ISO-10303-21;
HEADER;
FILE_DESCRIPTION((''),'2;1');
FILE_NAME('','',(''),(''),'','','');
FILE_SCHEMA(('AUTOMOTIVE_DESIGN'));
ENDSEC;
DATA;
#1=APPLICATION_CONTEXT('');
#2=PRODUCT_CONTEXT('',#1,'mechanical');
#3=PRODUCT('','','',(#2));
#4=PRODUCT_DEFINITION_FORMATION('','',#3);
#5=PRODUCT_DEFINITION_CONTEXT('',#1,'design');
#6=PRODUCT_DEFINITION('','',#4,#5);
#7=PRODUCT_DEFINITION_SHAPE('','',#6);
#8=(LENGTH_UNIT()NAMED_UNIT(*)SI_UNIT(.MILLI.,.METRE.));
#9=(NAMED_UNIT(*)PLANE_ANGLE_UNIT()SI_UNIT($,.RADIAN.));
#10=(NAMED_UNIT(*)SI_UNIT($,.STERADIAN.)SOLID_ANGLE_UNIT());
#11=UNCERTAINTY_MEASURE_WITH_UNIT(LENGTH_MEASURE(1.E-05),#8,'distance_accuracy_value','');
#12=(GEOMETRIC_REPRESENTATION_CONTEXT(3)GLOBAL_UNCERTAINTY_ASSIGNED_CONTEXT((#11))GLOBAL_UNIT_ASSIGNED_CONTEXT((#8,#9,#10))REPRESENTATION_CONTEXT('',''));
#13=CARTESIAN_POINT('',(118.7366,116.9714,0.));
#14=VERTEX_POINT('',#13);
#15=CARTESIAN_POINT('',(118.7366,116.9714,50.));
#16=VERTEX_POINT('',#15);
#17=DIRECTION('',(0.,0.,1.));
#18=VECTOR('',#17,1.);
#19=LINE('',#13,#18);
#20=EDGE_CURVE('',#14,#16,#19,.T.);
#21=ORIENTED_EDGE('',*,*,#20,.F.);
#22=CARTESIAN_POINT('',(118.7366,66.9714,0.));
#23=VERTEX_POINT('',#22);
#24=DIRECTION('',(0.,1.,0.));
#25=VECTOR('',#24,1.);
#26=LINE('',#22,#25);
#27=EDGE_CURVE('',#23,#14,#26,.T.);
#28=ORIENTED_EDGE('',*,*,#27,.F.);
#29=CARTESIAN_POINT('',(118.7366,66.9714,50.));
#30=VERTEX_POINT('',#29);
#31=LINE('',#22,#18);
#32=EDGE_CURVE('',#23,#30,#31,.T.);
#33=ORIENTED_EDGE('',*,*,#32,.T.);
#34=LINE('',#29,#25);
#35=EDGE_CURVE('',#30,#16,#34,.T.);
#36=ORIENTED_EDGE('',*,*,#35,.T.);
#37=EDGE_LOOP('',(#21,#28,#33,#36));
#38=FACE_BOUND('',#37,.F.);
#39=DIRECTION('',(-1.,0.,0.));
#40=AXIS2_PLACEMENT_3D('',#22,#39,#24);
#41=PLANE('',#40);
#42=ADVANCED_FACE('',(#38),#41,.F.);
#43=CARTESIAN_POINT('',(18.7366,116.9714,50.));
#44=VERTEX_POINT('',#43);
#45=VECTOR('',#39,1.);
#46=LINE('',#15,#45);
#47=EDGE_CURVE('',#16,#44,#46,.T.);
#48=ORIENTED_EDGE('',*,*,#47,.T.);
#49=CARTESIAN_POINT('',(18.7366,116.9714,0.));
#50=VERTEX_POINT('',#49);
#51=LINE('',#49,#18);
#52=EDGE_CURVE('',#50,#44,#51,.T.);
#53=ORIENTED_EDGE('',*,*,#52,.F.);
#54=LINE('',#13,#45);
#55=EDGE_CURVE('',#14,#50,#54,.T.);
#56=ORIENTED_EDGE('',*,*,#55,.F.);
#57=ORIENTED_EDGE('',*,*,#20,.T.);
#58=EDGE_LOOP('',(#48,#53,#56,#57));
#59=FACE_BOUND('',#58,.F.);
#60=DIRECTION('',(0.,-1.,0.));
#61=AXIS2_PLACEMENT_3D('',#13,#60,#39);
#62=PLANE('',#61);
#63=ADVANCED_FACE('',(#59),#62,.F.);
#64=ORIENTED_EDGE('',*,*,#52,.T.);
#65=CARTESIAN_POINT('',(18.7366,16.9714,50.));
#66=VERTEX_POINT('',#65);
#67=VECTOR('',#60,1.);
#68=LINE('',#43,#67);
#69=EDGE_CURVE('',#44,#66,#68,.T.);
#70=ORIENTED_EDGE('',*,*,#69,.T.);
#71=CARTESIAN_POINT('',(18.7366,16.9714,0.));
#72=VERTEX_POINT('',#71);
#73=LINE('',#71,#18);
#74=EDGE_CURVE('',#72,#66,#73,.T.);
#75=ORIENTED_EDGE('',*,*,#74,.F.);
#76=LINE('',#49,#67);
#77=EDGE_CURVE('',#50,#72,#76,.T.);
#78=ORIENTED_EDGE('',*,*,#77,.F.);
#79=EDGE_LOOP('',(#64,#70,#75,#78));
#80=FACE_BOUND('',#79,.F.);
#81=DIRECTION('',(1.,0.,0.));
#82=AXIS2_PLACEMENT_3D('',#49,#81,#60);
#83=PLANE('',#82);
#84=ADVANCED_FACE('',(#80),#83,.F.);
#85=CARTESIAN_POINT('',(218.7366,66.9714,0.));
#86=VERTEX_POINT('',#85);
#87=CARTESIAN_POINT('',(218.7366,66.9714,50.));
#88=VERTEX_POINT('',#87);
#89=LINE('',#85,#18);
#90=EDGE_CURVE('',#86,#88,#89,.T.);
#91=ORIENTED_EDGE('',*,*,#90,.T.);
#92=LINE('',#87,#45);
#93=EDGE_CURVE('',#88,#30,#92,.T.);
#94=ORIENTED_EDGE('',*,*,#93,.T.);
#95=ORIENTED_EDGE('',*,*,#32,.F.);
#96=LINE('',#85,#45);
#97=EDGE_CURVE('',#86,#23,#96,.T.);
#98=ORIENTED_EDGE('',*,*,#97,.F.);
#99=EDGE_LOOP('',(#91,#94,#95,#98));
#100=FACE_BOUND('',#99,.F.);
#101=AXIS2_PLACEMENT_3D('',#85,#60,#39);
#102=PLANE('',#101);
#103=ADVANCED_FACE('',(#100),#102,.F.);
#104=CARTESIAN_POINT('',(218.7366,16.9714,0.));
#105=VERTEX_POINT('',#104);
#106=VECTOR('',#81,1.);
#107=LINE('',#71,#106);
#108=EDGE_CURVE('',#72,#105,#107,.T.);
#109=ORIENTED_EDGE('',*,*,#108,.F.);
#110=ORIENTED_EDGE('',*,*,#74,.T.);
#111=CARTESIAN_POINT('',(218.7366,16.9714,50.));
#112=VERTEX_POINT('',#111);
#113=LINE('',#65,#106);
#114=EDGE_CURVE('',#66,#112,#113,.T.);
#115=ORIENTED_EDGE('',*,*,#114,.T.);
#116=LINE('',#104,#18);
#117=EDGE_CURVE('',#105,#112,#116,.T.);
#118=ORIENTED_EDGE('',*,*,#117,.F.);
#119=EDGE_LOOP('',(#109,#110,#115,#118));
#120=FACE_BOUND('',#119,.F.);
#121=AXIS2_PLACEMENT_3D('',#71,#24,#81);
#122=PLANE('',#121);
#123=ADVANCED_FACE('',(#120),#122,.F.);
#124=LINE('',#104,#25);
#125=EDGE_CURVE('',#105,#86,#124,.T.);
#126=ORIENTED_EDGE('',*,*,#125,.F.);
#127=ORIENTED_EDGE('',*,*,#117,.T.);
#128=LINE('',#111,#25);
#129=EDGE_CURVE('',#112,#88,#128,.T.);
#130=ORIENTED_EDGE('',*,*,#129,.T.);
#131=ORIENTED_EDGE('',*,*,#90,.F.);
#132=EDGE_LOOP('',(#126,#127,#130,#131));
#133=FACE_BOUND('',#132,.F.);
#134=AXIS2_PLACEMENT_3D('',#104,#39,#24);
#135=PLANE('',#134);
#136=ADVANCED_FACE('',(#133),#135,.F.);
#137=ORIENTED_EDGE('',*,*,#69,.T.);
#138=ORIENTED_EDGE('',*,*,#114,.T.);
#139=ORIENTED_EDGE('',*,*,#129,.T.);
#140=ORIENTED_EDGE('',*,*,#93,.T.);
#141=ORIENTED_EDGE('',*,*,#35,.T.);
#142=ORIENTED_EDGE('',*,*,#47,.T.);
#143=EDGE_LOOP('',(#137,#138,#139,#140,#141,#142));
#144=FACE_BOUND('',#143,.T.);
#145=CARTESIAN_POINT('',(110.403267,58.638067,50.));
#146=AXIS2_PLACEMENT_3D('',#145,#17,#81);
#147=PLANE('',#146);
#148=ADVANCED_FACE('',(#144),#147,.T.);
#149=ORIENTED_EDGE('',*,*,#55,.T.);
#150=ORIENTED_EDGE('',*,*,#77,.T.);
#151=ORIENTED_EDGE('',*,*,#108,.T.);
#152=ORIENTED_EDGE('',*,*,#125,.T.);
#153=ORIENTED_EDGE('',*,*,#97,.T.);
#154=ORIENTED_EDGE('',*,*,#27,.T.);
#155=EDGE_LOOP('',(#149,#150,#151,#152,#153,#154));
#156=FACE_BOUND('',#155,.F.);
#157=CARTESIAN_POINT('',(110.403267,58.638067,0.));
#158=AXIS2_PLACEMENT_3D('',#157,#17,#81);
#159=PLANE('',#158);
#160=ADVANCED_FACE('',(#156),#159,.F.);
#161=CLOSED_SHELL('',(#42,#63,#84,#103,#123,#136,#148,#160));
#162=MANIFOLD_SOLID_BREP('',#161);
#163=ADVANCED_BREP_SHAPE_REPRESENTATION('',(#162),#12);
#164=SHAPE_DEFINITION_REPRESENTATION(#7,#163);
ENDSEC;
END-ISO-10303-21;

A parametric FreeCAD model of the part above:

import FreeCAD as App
import Part
import Sketcher
from FreeCAD import Vector
Q = App.Units.Quantity

doc = App.newDocument("Part")
params = doc.addObject("Spreadsheet::Sheet", "Params")
for row, (alias, value) in enumerate([
    ("sketch1_width", "200 mm"),
    ("pad1_length", "50 mm"),
], start=1):
    params.set(f"A{row}", alias)
    params.set(f"B{row}", "=" + value)
    params.setAlias(f"B{row}", alias)

body = doc.addObject("PartDesign::Body", "Body")

# Sketch on XY plane
sketch1 = body.newObject("Sketcher::SketchObject", "Sketch")
sketch1.AttachmentSupport = (doc.getObject("XY_Plane"), [""])
sketch1.MapMode = "FlatFace"
sketch1.addGeometry([
    Part.LineSegment(Vector(18.7366, 116.9714, 0), Vector(18.7366, 16.9714, 0)),  # 0
    Part.LineSegment(Vector(18.7366, 16.9714, 0), Vector(218.7366, 16.9714, 0)),  # 1
    Part.LineSegment(Vector(218.7366, 16.9714, 0), Vector(218.7366, 66.9714, 0)),  # 2
    Part.LineSegment(Vector(218.7366, 66.9714, 0), Vector(118.7366, 66.9714, 0)),  # 3
    Part.LineSegment(Vector(118.7366, 66.9714, 0), Vector(118.7366, 116.9714, 0)),  # 4
    Part.LineSegment(Vector(118.7366, 116.9714, 0), Vector(18.7366, 116.9714, 0)),  # 5
], False)
sketch1.addConstraint([
    Sketcher.Constraint("Coincident", 0, 2, 1, 1),
    Sketcher.Constraint("Coincident", 1, 2, 2, 1),
    Sketcher.Constraint("Coincident", 2, 2, 3, 1),
    Sketcher.Constraint("Coincident", 3, 2, 4, 1),
    Sketcher.Constraint("Coincident", 4, 2, 5, 1),
    Sketcher.Constraint("Coincident", 5, 2, 0, 1),
    Sketcher.Constraint("Vertical", 0),
    Sketcher.Constraint("Horizontal", 1),
    Sketcher.Constraint("Vertical", 2),
    Sketcher.Constraint("Horizontal", 3),
    Sketcher.Constraint("Vertical", 4),
    Sketcher.Constraint("Horizontal", 5),
    Sketcher.Constraint("Equal", 3, 5),
    Sketcher.Constraint("Equal", 5, 0),
    Sketcher.Constraint("Equal", 2, 4),
    Sketcher.Constraint("DistanceX", 1, 1, 1, 2, Q("200 mm")),
    Sketcher.Constraint("DistanceX", -1, 1, 0, 2, Q("18.7366 mm")),
    Sketcher.Constraint("DistanceY", -1, 1, 0, 2, Q("16.9714 mm")),
])
sketch1.setExpression("Constraints[15]", "Params.sketch1_width")
pad1 = body.newObject("PartDesign::Pad", "Pad")
pad1.Profile = sketch1
pad1.setExpression("Length", "Params.pad1_length")

doc.recompute()
